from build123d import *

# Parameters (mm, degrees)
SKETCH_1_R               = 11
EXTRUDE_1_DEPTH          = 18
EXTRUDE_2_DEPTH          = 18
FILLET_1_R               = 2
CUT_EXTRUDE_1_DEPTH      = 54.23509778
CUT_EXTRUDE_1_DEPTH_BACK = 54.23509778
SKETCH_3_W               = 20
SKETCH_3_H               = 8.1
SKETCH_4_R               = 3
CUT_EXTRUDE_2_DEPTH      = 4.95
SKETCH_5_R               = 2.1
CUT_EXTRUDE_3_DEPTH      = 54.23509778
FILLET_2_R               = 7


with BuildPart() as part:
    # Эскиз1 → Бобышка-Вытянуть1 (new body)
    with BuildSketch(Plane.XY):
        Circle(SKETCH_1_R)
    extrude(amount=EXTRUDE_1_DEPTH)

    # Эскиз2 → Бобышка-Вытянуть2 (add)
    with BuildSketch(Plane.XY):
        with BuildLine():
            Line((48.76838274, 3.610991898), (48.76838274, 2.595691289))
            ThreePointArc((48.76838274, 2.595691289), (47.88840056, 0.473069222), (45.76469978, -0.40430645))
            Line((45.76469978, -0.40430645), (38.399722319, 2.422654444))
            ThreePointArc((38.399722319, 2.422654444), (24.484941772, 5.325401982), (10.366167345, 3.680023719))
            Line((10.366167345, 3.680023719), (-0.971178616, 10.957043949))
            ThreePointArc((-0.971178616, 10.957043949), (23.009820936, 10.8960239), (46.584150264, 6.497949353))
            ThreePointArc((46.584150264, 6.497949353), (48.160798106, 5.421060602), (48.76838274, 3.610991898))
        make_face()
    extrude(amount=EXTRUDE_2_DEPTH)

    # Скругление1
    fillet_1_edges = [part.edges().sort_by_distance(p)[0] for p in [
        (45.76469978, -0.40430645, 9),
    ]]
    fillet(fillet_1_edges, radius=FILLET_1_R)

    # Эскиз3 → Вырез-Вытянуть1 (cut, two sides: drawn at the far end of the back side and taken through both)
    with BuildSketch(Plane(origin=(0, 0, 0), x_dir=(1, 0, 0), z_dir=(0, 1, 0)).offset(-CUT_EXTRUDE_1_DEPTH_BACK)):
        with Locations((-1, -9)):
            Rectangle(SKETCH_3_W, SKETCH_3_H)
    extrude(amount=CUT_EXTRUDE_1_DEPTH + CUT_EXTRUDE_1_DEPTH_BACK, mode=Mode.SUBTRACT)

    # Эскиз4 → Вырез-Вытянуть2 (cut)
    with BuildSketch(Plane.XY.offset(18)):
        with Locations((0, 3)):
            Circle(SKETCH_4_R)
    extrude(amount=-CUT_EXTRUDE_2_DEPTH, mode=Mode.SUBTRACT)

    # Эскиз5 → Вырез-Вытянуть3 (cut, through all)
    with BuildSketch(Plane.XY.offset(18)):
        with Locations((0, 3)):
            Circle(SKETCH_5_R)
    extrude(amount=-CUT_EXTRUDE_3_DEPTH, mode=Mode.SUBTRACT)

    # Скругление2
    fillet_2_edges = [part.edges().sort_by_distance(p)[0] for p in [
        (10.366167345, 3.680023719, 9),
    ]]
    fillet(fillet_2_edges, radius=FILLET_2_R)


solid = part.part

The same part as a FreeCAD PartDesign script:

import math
import FreeCAD as App
import Part
import Sketcher
from FreeCAD import Vector
Q = App.Units.Quantity


def edges_at(feature, points):
    """Names of the edges that pass closest to the given points."""
    edges = feature.Shape.Edges
    near = lambda p: min(range(len(edges)), key=lambda i: edges[i].distToShape(Part.Vertex(*p))[0])
    return sorted({f"Edge{near(p) + 1}" for p in points})

doc = App.newDocument("Part")
body = doc.addObject("PartDesign::Body", "Body")

# Sketch on XY plane
sketch1 = body.newObject("Sketcher::SketchObject", "Sketch")
sketch1.AttachmentSupport = (doc.getObject("XY_Plane"), [""])
sketch1.MapMode = "FlatFace"
sketch1.addGeometry(Part.Circle(Vector(0, 0, 0), Vector(0, 0, 1), 11), False)
sketch1.addConstraint(Sketcher.Constraint("Coincident", 0, 3, -1, 1))
sketch1.addConstraint(Sketcher.Constraint("Diameter", 0, Q("22 mm")))
pad1 = body.newObject("PartDesign::Pad", "Pad")
pad1.Profile = sketch1
pad1.Length = 18

# Sketch on XY plane
sketch2 = body.newObject("Sketcher::SketchObject", "Sketch001")
sketch2.AttachmentSupport = (doc.getObject("XY_Plane"), [""])
sketch2.MapMode = "FlatFace"
sketch2.addGeometry(Part.LineSegment(Vector(48.768383, 2.595691, 0), Vector(48.768383, 3.610992, 0)), False)
sketch2.addGeometry(Part.ArcOfCircle(Part.Circle(Vector(45.768383, 3.610992, 0), Vector(0, 0, 1), 3), math.radians(0), math.radians(74.221301)), False)
sketch2.addGeometry(Part.ArcOfCircle(Part.Circle(Vector(10.684782, -120.547987, 0), Vector(0, 0, 1), 132.020583), math.radians(74.221301), math.radians(95.06518)), False)
sketch2.addGeometry(Part.LineSegment(Vector(-0.971179, 10.957044, 0), Vector(10.366167, 3.680024, 0)), False)
sketch2.addGeometry(Part.ArcOfCircle(Part.Circle(Vector(22.496413, -39.009654, 0), Vector(0, 0, 1), 44.379629), math.radians(69.001282), math.radians(105.862466)), False)
sketch2.addGeometry(Part.LineSegment(Vector(38.399722, 2.422654, 0), Vector(45.7647, -0.404306, 0)), False)
sketch2.addGeometry(Part.ArcOfCircle(Part.Circle(Vector(45.768383, 2.595691, 0), Vector(0, 0, 1), 3), math.radians(-90.070339), math.radians(0)), False)
sketch2.addConstraint(Sketcher.Constraint("Tangent", 0, 2, 1, 1))
sketch2.addConstraint(Sketcher.Constraint("Tangent", 1, 2, 2, 1))
sketch2.addConstraint(Sketcher.Constraint("Coincident", 2, 2, 3, 1))
sketch2.addConstraint(Sketcher.Constraint("Coincident", 3, 2, 4, 2))
sketch2.addConstraint(Sketcher.Constraint("Tangent", 4, 1, 5, 1))
sketch2.addConstraint(Sketcher.Constraint("Coincident", 5, 2, 6, 1))
sketch2.addConstraint(Sketcher.Constraint("Tangent", 6, 2, 0, 1))
sketch2.addConstraint(Sketcher.Constraint("Vertical", 0))
sketch2.addConstraint(Sketcher.Constraint("Equal", 1, 6))
sketch2.addConstraint(Sketcher.Constraint("Radius", 1, Q("3 mm")))
sketch2.addConstraint(Sketcher.Constraint("Radius", 4, Q("44.379629 mm")))
sketch2.addConstraint(Sketcher.Constraint("DistanceY", 0, 1, 0, 2, Q("1.015301 mm")))
sketch2.addConstraint(Sketcher.Constraint("Radius", 2, Q("132.020583 mm")))
sketch2.addConstraint(Sketcher.Constraint("DistanceX", -1, 1, 5, 2, Q("45.7647 mm")))
sketch2.addConstraint(Sketcher.Constraint("DistanceX", 2, 3, 1, 3, Q("35.083601 mm")))
sketch2.addConstraint(Sketcher.Constraint("DistanceY", 4, 3, 2, 2, Q("49.966698 mm")))
sketch2.addConstraint(Sketcher.Constraint("Distance", 3, Q("13.471839 mm")))
sketch2.addConstraint(Sketcher.Constraint("Distance", 5, Q("7.888891 mm")))
sketch2.addConstraint(Sketcher.Constraint("DistanceY", -1, 1, 1, 3, Q("3.610992 mm")))
sketch2.addConstraint(Sketcher.Constraint("DistanceX", -1, 1, 1, 2, Q("46.58415 mm")))
sketch2.addConstraint(Sketcher.Constraint("DistanceX", 2, 2, -1, 1, Q("0.971179 mm")))
pad2 = body.newObject("PartDesign::Pad", "Pad001")
pad2.Profile = sketch2
pad2.Length = 18
doc.recompute()

fillet = body.newObject("PartDesign::Fillet", "Fillet")
fillet.Base = (pad2, edges_at(pad2, [(45.765, -0.404, 9)]))
fillet.Radius = 2

# Sketch on XZ plane
sketch3 = body.newObject("Sketcher::SketchObject", "Sketch002")
sketch3.AttachmentSupport = (doc.getObject("XZ_Plane"), [""])
sketch3.MapMode = "FlatFace"
sketch3.addGeometry(Part.LineSegment(Vector(-11, 4.95, 0), Vector(-11, 13.05, 0)), False)
sketch3.addGeometry(Part.LineSegment(Vector(-11, 13.05, 0), Vector(9, 13.05, 0)), False)
sketch3.addGeometry(Part.LineSegment(Vector(9, 13.05, 0), Vector(9, 4.95, 0)), False)
sketch3.addGeometry(Part.LineSegment(Vector(9, 4.95, 0), Vector(-11, 4.95, 0)), False)
sketch3.addConstraint(Sketcher.Constraint("Coincident", 0, 2, 1, 1))
sketch3.addConstraint(Sketcher.Constraint("Coincident", 1, 2, 2, 1))
sketch3.addConstraint(Sketcher.Constraint("Coincident", 2, 2, 3, 1))
sketch3.addConstraint(Sketcher.Constraint("Coincident", 3, 2, 0, 1))
sketch3.addConstraint(Sketcher.Constraint("Vertical", 0))
sketch3.addConstraint(Sketcher.Constraint("Horizontal", 1))
sketch3.addConstraint(Sketcher.Constraint("Vertical", 2))
sketch3.addConstraint(Sketcher.Constraint("Horizontal", 3))
sketch3.addConstraint(Sketcher.Constraint("DistanceX", 1, 1, 1, 2, Q("20 mm")))
sketch3.addConstraint(Sketcher.Constraint("DistanceY", 0, 1, 0, 2, Q("8.1 mm")))
sketch3.addConstraint(Sketcher.Constraint("DistanceX", 0, 2, -1, 1, Q("11 mm")))
sketch3.addConstraint(Sketcher.Constraint("DistanceY", -1, 1, 0, 2, Q("13.05 mm")))
pocket1 = body.newObject("PartDesign::Pocket", "Pocket")
pocket1.Profile = sketch3
pocket1.Type = "ThroughAll"
pocket1.Midplane = True

# Sketch on XY plane
sketch4 = body.newObject("Sketcher::SketchObject", "Sketch003")
sketch4.AttachmentSupport = (doc.getObject("XY_Plane"), [""])
sketch4.MapMode = "FlatFace"
sketch4.AttachmentOffset = App.Placement(Vector(0, 0, 18), App.Rotation())
sketch4.addGeometry(Part.Circle(Vector(0, 3, 0), Vector(0, 0, 1), 3), False)
sketch4.addConstraint(Sketcher.Constraint("PointOnObject", 0, 3, -2))
sketch4.addConstraint(Sketcher.Constraint("Diameter", 0, Q("6 mm")))
sketch4.addConstraint(Sketcher.Constraint("DistanceY", -1, 1, 0, 3, Q("3 mm")))
pocket2 = body.newObject("PartDesign::Pocket", "Pocket001")
pocket2.Profile = sketch4
pocket2.Length = 4.95

# Sketch on XY plane
sketch5 = body.newObject("Sketcher::SketchObject", "Sketch004")
sketch5.AttachmentSupport = (doc.getObject("XY_Plane"), [""])
sketch5.MapMode = "FlatFace"
sketch5.AttachmentOffset = App.Placement(Vector(0, 0, 18), App.Rotation())
sketch5.addGeometry(Part.Circle(Vector(0, 3, 0), Vector(0, 0, 1), 2.1), False)
sketch5.addConstraint(Sketcher.Constraint("PointOnObject", 0, 3, -2))
sketch5.addConstraint(Sketcher.Constraint("Diameter", 0, Q("4.2 mm")))
sketch5.addConstraint(Sketcher.Constraint("DistanceY", -1, 1, 0, 3, Q("3 mm")))
pocket3 = body.newObject("PartDesign::Pocket", "Pocket002")
pocket3.Profile = sketch5
pocket3.Type = "ThroughAll"
doc.recompute()

fillet2 = body.newObject("PartDesign::Fillet", "Fillet001")
fillet2.Base = (pocket3, edges_at(pocket3, [(10.366, 3.68, 9)]))
fillet2.Radius = 7

doc.recompute()
